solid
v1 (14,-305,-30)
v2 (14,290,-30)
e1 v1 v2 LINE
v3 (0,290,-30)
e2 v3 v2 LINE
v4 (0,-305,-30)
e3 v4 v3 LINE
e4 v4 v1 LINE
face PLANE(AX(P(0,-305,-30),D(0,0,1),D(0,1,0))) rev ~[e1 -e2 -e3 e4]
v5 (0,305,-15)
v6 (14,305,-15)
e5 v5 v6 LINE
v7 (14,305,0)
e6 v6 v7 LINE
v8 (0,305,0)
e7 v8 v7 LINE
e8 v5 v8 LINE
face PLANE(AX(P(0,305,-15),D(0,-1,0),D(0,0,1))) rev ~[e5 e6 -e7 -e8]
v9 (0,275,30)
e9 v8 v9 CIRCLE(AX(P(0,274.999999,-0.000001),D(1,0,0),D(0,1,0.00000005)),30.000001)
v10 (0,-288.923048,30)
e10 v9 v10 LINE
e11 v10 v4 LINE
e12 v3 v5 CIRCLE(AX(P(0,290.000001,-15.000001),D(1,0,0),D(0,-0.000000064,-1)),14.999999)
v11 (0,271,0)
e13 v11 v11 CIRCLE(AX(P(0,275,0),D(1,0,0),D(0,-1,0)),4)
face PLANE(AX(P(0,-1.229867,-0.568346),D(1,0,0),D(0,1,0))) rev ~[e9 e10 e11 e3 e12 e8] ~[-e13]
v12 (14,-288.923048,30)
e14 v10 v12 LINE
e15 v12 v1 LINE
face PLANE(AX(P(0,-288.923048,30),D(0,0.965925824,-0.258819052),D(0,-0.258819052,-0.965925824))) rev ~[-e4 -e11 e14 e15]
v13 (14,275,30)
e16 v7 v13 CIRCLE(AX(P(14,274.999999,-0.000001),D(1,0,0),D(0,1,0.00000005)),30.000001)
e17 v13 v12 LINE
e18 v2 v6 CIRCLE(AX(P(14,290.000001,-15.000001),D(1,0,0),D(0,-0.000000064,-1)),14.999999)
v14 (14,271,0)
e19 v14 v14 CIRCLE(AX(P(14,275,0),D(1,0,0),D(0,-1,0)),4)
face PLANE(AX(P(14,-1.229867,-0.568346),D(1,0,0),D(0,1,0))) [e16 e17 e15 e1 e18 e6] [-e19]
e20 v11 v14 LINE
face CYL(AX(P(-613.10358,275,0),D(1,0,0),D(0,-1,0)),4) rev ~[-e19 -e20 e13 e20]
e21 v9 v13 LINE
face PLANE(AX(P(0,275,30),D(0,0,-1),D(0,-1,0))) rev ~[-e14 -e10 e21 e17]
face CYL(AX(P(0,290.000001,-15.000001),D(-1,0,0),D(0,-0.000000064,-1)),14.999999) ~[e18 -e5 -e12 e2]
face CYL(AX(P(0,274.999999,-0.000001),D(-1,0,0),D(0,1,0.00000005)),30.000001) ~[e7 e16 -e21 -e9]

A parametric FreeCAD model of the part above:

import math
import FreeCAD as App
import Part
import Sketcher
Q = App.Units.Quantity

doc = App.newDocument("Part")
body = doc.addObject("PartDesign::Body", "Body")

# Sketch on YZ plane
sketch1 = doc.addObject("Sketcher::SketchObject", "Sketch")
body.addObject(sketch1)
sketch1.AttachmentSupport = (doc.YZ_Plane, [""])
sketch1.MapMode = "FlatFace"
sketch1.addGeometry([
    Part.LineSegment(App.Vector(275, 30, 0), App.Vector(-289, 30, 0)),  # 0
    Part.LineSegment(App.Vector(-289, 30, 0), App.Vector(-305, -30, 0)),  # 1
    Part.LineSegment(App.Vector(-305, -30, 0), App.Vector(290, -30, 0)),  # 2
    Part.ArcOfCircle(Part.Circle(App.Vector(290, -15, 0), App.Vector(0, 0, 1), 15), math.radians(-90), math.radians(0)),  # 3
    Part.LineSegment(App.Vector(305, -15, 0), App.Vector(305, 0, 0)),  # 4
    Part.ArcOfCircle(Part.Circle(App.Vector(275, 0, 0), App.Vector(0, 0, 1), 30), math.radians(0), math.radians(90)),  # 5
], False)
sketch1.addConstraint([
    Sketcher.Constraint("Coincident", 0, 2, 1, 1),
    Sketcher.Constraint("Coincident", 1, 2, 2, 1),
    Sketcher.Constraint("Tangent", 2, 2, 3, 1),
    Sketcher.Constraint("Tangent", 3, 2, 4, 1),
    Sketcher.Constraint("Tangent", 4, 2, 5, 1),
    Sketcher.Constraint("Tangent", 5, 2, 0, 1),
    Sketcher.Constraint("Horizontal", 0),
    Sketcher.Constraint("Horizontal", 2),
    Sketcher.Constraint("Vertical", 4),
    Sketcher.Constraint("PointOnObject", 5, 3, -1),
    Sketcher.Constraint("Radius", 3, 14.999999),
    Sketcher.Constraint("Radius", 5, 30.000001),
    Sketcher.Constraint("DistanceX", 2, 1, 2, 2, 595.0),
    Sketcher.Constraint("DistanceY", 4, 1, 4, 2, 15.0),
    Sketcher.Constraint("Angle", 1, Q("-105 deg")),
    Sketcher.Constraint("DistanceX", -1, 1, 3, 3, 290.000001),
])
pad1 = doc.addObject("PartDesign::Pad", "Pad")
body.addObject(pad1)
pad1.Profile = sketch1
pad1.Length = 14

# Sketch on YZ plane
sketch2 = doc.addObject("Sketcher::SketchObject", "Sketch001")
body.addObject(sketch2)
sketch2.AttachmentSupport = (doc.YZ_Plane, [""])
sketch2.MapMode = "FlatFace"
sketch2.addGeometry(Part.Circle(App.Vector(275, 0, 0), App.Vector(0, 0, 1), 4), False)
sketch2.addConstraint([
    Sketcher.Constraint("PointOnObject", 0, 3, -1),
    Sketcher.Constraint("Diameter", 0, 8.0),
    Sketcher.Constraint("DistanceX", -1, 1, 0, 3, 275.0),
])
doc.recompute()
hole = doc.addObject("PartDesign::Hole", "Hole")
body.addObject(hole)
hole.Profile = sketch2
hole.ThreadType = "None"
hole.Diameter = 8
hole.DepthType = "ThroughAll"
hole.Reversed = True

doc.recompute()
